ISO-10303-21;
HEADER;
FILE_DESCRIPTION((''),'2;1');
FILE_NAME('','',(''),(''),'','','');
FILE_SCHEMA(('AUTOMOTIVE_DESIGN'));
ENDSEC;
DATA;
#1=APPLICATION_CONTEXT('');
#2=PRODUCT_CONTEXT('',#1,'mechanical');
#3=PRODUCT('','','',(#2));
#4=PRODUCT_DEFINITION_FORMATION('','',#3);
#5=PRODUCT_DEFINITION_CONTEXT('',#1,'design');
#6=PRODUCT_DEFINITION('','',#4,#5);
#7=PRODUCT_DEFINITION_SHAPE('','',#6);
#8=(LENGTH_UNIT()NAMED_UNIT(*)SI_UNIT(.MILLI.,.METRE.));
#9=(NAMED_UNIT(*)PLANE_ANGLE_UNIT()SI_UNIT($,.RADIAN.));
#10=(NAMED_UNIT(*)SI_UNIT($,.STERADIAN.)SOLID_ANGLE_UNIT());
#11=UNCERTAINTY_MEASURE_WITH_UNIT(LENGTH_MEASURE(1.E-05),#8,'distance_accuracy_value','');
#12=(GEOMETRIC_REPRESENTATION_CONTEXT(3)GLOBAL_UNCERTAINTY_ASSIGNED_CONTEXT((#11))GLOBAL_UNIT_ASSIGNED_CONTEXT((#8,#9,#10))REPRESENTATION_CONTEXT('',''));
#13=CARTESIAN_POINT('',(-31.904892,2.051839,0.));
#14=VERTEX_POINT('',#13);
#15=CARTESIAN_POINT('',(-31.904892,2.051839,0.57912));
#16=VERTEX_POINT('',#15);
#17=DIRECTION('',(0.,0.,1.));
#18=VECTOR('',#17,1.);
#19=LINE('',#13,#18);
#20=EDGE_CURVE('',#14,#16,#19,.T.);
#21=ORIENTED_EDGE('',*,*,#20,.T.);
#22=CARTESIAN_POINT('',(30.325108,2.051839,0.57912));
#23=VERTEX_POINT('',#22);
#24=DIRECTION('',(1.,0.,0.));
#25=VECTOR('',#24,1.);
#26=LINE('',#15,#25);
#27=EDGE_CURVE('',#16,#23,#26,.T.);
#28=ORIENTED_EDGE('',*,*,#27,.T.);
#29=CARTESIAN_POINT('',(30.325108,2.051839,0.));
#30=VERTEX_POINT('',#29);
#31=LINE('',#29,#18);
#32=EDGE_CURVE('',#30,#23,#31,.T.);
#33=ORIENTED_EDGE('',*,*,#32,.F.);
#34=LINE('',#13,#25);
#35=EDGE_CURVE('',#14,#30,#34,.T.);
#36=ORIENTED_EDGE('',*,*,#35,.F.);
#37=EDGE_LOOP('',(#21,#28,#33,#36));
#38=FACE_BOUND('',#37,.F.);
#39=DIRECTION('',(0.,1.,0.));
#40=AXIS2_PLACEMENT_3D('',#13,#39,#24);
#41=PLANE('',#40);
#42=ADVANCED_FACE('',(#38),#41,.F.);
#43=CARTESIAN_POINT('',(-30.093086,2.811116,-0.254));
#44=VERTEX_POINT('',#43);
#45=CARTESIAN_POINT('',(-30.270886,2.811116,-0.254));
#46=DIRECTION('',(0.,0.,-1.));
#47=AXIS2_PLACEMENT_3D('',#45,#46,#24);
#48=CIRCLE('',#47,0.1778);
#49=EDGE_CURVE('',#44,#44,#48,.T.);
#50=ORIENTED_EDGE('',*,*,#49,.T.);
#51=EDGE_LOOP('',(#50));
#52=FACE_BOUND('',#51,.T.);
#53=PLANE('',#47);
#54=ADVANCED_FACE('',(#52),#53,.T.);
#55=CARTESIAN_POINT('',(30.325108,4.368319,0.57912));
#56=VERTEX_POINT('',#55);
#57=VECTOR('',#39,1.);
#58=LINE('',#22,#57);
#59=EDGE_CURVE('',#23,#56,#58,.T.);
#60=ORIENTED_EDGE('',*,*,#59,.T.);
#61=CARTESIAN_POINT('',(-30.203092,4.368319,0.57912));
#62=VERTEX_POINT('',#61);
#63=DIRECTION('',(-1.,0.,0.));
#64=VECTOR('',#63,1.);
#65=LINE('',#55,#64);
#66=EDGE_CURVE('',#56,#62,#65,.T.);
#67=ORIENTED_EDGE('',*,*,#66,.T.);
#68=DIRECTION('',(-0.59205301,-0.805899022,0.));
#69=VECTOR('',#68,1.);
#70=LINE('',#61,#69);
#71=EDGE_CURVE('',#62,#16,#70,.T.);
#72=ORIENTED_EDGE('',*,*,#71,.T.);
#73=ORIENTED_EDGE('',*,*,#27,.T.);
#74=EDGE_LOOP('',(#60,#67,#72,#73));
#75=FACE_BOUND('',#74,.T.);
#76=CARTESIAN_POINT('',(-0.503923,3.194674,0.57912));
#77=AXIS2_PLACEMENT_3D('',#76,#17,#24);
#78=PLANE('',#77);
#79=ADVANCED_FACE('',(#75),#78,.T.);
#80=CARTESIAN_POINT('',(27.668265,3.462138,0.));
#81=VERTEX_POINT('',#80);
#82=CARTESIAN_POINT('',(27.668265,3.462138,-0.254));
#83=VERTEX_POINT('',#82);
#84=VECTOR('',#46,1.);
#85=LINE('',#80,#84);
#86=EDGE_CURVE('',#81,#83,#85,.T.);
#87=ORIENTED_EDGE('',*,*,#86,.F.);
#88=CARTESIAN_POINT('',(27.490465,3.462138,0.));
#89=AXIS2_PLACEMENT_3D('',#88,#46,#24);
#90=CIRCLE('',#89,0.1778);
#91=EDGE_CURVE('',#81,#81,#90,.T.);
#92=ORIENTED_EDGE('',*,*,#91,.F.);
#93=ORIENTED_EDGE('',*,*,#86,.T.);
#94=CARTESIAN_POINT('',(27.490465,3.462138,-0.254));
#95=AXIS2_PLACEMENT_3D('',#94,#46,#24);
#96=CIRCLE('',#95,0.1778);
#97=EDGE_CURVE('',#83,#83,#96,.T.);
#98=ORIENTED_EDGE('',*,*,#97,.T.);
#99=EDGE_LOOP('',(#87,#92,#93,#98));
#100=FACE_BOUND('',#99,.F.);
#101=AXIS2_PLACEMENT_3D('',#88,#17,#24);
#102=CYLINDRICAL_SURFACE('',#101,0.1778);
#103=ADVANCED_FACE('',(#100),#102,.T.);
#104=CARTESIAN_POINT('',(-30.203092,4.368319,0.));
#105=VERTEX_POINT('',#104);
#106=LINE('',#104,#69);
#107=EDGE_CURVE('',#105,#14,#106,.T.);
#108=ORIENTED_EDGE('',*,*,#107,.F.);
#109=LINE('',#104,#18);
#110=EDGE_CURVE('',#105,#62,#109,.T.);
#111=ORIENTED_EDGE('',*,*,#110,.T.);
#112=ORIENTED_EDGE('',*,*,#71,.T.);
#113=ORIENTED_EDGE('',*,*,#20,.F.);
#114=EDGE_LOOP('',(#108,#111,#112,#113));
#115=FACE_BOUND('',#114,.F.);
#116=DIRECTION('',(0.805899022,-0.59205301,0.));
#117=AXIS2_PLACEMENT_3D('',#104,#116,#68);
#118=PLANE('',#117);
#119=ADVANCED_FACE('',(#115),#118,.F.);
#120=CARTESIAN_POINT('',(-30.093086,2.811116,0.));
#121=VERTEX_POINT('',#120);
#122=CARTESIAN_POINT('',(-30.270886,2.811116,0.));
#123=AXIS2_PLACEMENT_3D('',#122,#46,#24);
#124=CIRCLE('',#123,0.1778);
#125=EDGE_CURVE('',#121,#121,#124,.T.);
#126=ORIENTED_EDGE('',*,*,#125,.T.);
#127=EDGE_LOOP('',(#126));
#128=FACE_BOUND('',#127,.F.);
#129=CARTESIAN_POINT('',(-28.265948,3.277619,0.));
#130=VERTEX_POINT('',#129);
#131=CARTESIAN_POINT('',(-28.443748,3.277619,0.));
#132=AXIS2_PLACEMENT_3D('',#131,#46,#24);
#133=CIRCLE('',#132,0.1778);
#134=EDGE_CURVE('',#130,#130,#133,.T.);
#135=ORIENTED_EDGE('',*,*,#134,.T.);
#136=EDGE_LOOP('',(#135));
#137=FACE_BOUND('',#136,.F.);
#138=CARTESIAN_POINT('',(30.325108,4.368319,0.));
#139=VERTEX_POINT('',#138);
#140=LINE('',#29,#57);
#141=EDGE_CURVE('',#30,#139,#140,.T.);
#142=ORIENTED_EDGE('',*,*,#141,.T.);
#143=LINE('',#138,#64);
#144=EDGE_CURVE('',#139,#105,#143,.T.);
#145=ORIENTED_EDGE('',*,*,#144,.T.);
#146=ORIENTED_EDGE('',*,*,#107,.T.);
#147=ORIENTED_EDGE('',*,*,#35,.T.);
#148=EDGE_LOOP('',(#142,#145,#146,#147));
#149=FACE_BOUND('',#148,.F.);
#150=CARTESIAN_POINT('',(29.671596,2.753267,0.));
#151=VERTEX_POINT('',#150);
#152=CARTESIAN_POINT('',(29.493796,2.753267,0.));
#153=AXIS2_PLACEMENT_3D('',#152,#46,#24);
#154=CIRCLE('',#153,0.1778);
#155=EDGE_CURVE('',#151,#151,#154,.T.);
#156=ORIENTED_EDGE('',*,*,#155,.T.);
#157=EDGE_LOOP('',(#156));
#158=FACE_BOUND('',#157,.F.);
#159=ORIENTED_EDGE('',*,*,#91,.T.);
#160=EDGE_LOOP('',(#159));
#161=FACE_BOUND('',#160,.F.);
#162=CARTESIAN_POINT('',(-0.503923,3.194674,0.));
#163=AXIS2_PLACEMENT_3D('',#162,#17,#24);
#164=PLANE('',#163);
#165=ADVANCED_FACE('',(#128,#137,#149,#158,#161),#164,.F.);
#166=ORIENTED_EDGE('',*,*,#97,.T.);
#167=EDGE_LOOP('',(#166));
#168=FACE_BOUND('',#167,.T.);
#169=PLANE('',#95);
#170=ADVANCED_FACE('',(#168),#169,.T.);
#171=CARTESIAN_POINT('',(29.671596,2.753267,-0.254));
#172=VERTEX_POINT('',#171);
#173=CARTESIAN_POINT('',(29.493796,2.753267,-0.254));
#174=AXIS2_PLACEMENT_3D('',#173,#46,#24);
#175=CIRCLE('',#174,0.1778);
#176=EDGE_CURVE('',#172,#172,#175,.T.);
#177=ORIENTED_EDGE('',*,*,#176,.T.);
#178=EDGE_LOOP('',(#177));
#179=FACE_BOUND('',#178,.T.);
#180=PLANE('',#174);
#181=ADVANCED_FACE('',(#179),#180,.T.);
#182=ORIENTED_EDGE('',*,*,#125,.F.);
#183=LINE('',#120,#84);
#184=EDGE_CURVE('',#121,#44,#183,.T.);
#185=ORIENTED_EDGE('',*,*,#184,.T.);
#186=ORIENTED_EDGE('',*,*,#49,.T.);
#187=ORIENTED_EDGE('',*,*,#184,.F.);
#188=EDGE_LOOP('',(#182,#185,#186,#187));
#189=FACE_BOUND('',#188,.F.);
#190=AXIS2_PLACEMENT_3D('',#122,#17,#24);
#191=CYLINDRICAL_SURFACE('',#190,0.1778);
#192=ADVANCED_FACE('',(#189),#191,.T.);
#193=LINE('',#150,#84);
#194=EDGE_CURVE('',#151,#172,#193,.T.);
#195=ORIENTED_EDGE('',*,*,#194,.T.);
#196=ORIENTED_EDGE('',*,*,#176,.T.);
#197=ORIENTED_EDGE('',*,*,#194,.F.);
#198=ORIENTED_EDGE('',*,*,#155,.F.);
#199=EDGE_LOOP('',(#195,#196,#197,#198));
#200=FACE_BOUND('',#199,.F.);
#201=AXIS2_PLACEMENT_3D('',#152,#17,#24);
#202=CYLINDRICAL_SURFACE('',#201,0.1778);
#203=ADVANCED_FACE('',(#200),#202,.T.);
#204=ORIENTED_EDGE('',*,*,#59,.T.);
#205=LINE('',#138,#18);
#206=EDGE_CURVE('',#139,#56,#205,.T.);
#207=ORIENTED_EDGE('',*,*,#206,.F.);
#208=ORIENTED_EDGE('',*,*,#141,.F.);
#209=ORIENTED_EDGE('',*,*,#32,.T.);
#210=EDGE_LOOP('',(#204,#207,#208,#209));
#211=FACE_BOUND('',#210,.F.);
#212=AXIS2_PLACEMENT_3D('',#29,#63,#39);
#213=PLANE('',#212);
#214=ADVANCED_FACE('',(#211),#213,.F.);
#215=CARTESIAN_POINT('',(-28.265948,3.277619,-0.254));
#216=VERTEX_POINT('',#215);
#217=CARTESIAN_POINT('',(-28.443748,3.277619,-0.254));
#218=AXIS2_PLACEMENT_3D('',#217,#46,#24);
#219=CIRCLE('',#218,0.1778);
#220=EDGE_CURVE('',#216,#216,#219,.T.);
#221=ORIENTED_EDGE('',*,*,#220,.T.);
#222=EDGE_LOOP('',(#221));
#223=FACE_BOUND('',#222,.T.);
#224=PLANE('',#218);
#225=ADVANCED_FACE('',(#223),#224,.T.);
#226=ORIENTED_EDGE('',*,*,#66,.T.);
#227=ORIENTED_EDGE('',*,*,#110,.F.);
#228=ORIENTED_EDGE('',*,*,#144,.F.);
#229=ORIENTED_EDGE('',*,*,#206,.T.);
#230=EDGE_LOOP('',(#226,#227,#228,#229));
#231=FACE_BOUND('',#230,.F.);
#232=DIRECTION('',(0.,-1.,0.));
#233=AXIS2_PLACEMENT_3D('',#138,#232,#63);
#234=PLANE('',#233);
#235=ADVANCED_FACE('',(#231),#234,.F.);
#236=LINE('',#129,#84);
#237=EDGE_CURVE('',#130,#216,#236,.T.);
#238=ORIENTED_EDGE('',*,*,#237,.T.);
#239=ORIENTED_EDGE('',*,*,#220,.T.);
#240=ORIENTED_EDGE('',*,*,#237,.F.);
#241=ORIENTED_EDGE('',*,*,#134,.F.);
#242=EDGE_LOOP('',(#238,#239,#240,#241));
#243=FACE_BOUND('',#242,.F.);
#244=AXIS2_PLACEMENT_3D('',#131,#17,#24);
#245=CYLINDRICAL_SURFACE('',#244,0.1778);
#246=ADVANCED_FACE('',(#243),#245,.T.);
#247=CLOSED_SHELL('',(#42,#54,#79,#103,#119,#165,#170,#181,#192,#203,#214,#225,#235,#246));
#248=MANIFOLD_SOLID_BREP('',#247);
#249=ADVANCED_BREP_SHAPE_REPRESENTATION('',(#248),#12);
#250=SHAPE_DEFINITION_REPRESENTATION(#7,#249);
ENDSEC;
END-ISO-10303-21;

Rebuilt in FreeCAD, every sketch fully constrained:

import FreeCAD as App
import Part
import Sketcher

V = App.Vector
Q = App.Units.Quantity


def add_polygon(sketch, points):
    """Adds a closed chain of lines whose ends are joined by coincident constraints."""
    first, n = sketch.GeometryCount, len(points)
    for a, b in zip(points, points[1:] + points[:1]):
        sketch.addGeometry(Part.LineSegment(App.Vector(*a, 0), App.Vector(*b, 0)), False)
    for i in range(n):
        sketch.addConstraint(Sketcher.Constraint("Coincident", first + i, 2, first + (i + 1) % n, 1))

doc = App.newDocument("Part")
body = doc.addObject("PartDesign::Body", "Body")

# Sketch on XY plane
sketch1 = body.newObject("Sketcher::SketchObject", "Sketch")
sketch1.AttachmentSupport = (doc.getObject("XY_Plane"), [""])
sketch1.MapMode = "FlatFace"
add_polygon(sketch1, [(30.3, 4.4), (-30.2, 4.4), (-31.9, 2.1), (30.3, 2.1)])  # lines 0-3
sketch1.addConstraint(Sketcher.Constraint("Horizontal", 0))
sketch1.addConstraint(Sketcher.Constraint("Horizontal", 2))
sketch1.addConstraint(Sketcher.Constraint("Vertical", 3))
sketch1.addConstraint(Sketcher.Constraint("DistanceX", 2, 1, 2, 2, Q("2.45 in")))
sketch1.addConstraint(Sketcher.Constraint("DistanceX", 0, 2, 0, 1, Q("2.383 in")))
sketch1.addConstraint(Sketcher.Constraint("DistanceY", 3, 1, 3, 2, Q("0.0912 in")))
sketch1.addConstraint(Sketcher.Constraint("DistanceY", -1, 1, 0, 2, Q("4.368319 mm")))
sketch1.addConstraint(Sketcher.Constraint("DistanceX", 1, 2, -1, 1, Q("31.904892 mm")))
pad1 = body.newObject("PartDesign::Pad", "Pad")
pad1.Profile = sketch1
pad1.Length = Q("0.0228 in")

# Sketch on XY plane
sketch2 = body.newObject("Sketcher::SketchObject", "Sketch001")
sketch2.AttachmentSupport = (doc.getObject("XY_Plane"), [""])
sketch2.MapMode = "FlatFace"
sketch2.addGeometry(Part.Circle(V(-30.27, 2.81, 0), V(0, 0, 1), 0.18), False)
sketch2.addGeometry(Part.Circle(V(-28.44, 3.28, 0), V(0, 0, 1), 0.18), False)
sketch2.addGeometry(Part.Circle(V(29.49, 2.75, 0), V(0, 0, 1), 0.18), False)
sketch2.addGeometry(Part.Circle(V(27.49, 3.46, 0), V(0, 0, 1), 0.18), False)
sketch2.addConstraint(Sketcher.Constraint("Equal", 0, 1))
sketch2.addConstraint(Sketcher.Constraint("Equal", 1, 2))
sketch2.addConstraint(Sketcher.Constraint("Equal", 2, 3))
sketch2.addConstraint(Sketcher.Constraint("Diameter", 0, Q("0.014 in")))
sketch2.addConstraint(Sketcher.Constraint("DistanceY", -1, 1, 1, 3, Q("3.277619 mm")))
sketch2.addConstraint(Sketcher.Constraint("DistanceX", 0, 3, 1, 3, Q("1.827138 mm")))
sketch2.addConstraint(Sketcher.Constraint("DistanceY", 2, 3, 1, 3, Q("0.524352 mm")))
sketch2.addConstraint(Sketcher.Constraint("DistanceY", 2, 3, 0, 3, Q("0.057849 mm")))
sketch2.addConstraint(Sketcher.Constraint("DistanceX", 3, 3, 2, 3, Q("2.003331 mm")))
sketch2.addConstraint(Sketcher.Constraint("DistanceY", 2, 3, 3, 3, Q("0.708871 mm")))
sketch2.addConstraint(Sketcher.Constraint("DistanceX", 0, 3, 3, 3, Q("57.761351 mm")))
sketch2.addConstraint(Sketcher.Constraint("DistanceX", 0, 3, -1, 1, Q("30.270886 mm")))
pad2 = body.newObject("PartDesign::Pad", "Pad001")
pad2.Profile = sketch2
pad2.Length = Q("0.01 in")
pad2.Reversed = True

doc.recompute()
